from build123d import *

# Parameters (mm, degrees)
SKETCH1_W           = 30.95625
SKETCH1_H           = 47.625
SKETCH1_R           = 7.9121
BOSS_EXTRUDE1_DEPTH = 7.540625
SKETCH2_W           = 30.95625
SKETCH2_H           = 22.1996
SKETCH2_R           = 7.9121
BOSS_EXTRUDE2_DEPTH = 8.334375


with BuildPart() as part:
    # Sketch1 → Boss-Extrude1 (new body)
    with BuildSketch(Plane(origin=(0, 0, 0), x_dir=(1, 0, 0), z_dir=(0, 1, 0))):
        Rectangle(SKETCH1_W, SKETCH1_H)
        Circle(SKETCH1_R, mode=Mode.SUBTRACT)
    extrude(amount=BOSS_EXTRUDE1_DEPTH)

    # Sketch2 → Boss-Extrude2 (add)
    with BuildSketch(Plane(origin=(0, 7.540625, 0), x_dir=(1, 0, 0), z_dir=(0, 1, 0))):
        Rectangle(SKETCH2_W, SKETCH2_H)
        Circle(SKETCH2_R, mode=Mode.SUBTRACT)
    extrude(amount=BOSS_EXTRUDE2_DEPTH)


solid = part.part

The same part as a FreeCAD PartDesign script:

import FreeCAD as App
import Part
import Sketcher
from FreeCAD import Vector
Q = App.Units.Quantity


def add_polygon(sketch, points):
    """Adds a closed chain of lines whose ends are joined by coincident constraints."""
    first, n = sketch.GeometryCount, len(points)
    for a, b in zip(points, points[1:] + points[:1]):
        sketch.addGeometry(Part.LineSegment(App.Vector(*a, 0), App.Vector(*b, 0)), False)
    for i in range(n):
        sketch.addConstraint(Sketcher.Constraint("Coincident", first + i, 2, first + (i + 1) % n, 1))

doc = App.newDocument("Part")
params = doc.addObject("Spreadsheet::Sheet", "Params")
for row, (alias, value) in enumerate([
    ("sketch1_diameter", "0.623 in"),
    ("sketch1_width", "1.21875 in"),
    ("sketch1_height", "1.875 in"),
    ("pad1_length", "0.296875 in"),
    ("sketch2_diameter", "0.623 in"),
    ("sketch2_width", "1.21875 in"),
    ("sketch2_height", "0.874 in"),
    ("pad2_length", "0.328125 in"),
], start=1):
    params.set(f"A{row}", alias)
    params.set(f"B{row}", "=" + value)
    params.setAlias(f"B{row}", alias)

body = doc.addObject("PartDesign::Body", "Body")

sketch1 = body.newObject("Sketcher::SketchObject", "Sketch")
sketch1.AttachmentSupport = (doc.getObject("XZ_Plane"), [""])
sketch1.MapMode = "FlatFace"
add_polygon(sketch1, [(-15.478125, -23.8125), (-15.478125, 23.8125), (15.478125, 23.8125), (15.478125, -23.8125)])
sketch1.addGeometry(Part.Circle(Vector(0, 0, 0), Vector(0, 0, 1), 7.9121), False)
sketch1.addConstraint(Sketcher.Constraint("Vertical", 0))
sketch1.addConstraint(Sketcher.Constraint("Horizontal", 1))
sketch1.addConstraint(Sketcher.Constraint("Vertical", 2))
sketch1.addConstraint(Sketcher.Constraint("Horizontal", 3))
sketch1.addConstraint(Sketcher.Constraint("Coincident", 4, 3, -1, 1))
sketch1.addConstraint(Sketcher.Constraint("Symmetric", 0, 2, 2, 2, -1, 1))
sketch1.addConstraint(Sketcher.Constraint("Diameter", 4, Q("0.623 in")))
sketch1.addConstraint(Sketcher.Constraint("DistanceX", 1, 1, 1, 2, Q("1.21875 in")))
sketch1.addConstraint(Sketcher.Constraint("DistanceY", 0, 1, 0, 2, Q("1.875 in")))
sketch1.setExpression("Constraints[10]", "Params.sketch1_diameter")
sketch1.setExpression("Constraints[11]", "Params.sketch1_width")
sketch1.setExpression("Constraints[12]", "Params.sketch1_height")
pad1 = body.newObject("PartDesign::Pad", "Pad")
pad1.Profile = sketch1
pad1.setExpression("Length", "Params.pad1_length")
pad1.Reversed = True

sketch2 = body.newObject("Sketcher::SketchObject", "Sketch001")
sketch2.AttachmentSupport = (doc.getObject("XZ_Plane"), [""])
sketch2.MapMode = "FlatFace"
sketch2.AttachmentOffset = App.Placement(Vector(0, 0, -0.296875 * 25.4), App.Rotation())
add_polygon(sketch2, [(-15.478125, -11.0998), (-15.478125, 11.0998), (15.478125, 11.0998), (15.478125, -11.0998)])
sketch2.addGeometry(Part.Circle(Vector(0, 0, 0), Vector(0, 0, 1), 7.9121), False)
sketch2.addConstraint(Sketcher.Constraint("Vertical", 0))
sketch2.addConstraint(Sketcher.Constraint("Horizontal", 1))
sketch2.addConstraint(Sketcher.Constraint("Vertical", 2))
sketch2.addConstraint(Sketcher.Constraint("Horizontal", 3))
sketch2.addConstraint(Sketcher.Constraint("Coincident", 4, 3, -1, 1))
sketch2.addConstraint(Sketcher.Constraint("Symmetric", 0, 2, 2, 2, -1, 1))
sketch2.addConstraint(Sketcher.Constraint("Diameter", 4, Q("0.623 in")))
sketch2.addConstraint(Sketcher.Constraint("DistanceX", 1, 1, 1, 2, Q("1.21875 in")))
sketch2.addConstraint(Sketcher.Constraint("DistanceY", 0, 1, 0, 2, Q("0.874 in")))
sketch2.setExpression("Constraints[10]", "Params.sketch2_diameter")
sketch2.setExpression("Constraints[11]", "Params.sketch2_width")
sketch2.setExpression("Constraints[12]", "Params.sketch2_height")
pad2 = body.newObject("PartDesign::Pad", "Pad001")
pad2.Profile = sketch2
pad2.setExpression("Length", "Params.pad2_length")
pad2.Reversed = True

doc.recompute()
